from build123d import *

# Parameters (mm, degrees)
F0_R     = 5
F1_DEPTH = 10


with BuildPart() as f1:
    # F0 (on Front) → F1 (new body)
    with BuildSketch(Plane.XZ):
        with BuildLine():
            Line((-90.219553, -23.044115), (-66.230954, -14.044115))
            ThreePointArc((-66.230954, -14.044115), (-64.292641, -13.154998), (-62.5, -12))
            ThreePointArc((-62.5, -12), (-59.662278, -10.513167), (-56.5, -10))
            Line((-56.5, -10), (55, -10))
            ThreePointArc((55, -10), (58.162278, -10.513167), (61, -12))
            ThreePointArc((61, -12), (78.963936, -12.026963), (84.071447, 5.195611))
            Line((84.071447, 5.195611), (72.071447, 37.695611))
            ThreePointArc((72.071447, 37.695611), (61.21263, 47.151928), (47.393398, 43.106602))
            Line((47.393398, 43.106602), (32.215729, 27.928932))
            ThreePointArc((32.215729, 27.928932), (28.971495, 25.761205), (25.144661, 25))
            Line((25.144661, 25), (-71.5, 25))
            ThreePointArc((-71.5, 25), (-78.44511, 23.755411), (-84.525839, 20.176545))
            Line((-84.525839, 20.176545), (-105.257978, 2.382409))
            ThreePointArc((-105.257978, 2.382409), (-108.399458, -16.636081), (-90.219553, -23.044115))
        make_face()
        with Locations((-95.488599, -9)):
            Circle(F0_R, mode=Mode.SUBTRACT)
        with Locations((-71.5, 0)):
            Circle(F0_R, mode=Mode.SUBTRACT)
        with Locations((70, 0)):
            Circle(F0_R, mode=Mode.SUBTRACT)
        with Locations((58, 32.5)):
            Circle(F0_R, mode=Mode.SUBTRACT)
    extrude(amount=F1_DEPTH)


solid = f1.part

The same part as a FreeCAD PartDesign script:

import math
import FreeCAD as App
import Part
import Sketcher

V = App.Vector
Q = App.Units.Quantity

doc = App.newDocument("Part")
body = doc.addObject("PartDesign::Body", "Body")

# Sketch on XZ plane
sketch1 = body.newObject("Sketcher::SketchObject", "Sketch")
sketch1.AttachmentSupport = (doc.getObject("XZ_Plane"), [""])
sketch1.MapMode = "FlatFace"
sketch1.addGeometry([
    Part.LineSegment(V(-90.219553, -23.044115, 0), V(-66.230954, -14.044115, 0)),  # 0
    Part.ArcOfCircle(Part.Circle(V(-71.500017, 0.000028, 0), V(0, 0, 1), 15.000032), math.radians(-69.43498), math.radians(-53.130115)),  # 1
    Part.ArcOfCircle(Part.Circle(V(-56.500001, -19.999998, 0), V(0, 0, 1), 9.999998), math.radians(89.999996), math.radians(126.869902)),  # 2
    Part.LineSegment(V(-56.5, -10, 0), V(55, -10, 0)),  # 3
    Part.ArcOfCircle(Part.Circle(V(55.000001, -19.999998, 0), V(0, 0, 1), 9.999998), math.radians(53.130098), math.radians(90.000004)),  # 4
    Part.ArcOfCircle(Part.Circle(V(70, 0, 0), V(0, 0, 1), 15), math.radians(-126.869896), math.radians(20.265695)),  # 5
    Part.LineSegment(V(84.071447, 5.195611, 0), V(72.071447, 37.695611, 0)),  # 6
    Part.ArcOfCircle(Part.Circle(V(57.999999, 32.499999, 0), V(0, 0, 1), 15.000001), math.radians(20.2657), math.radians(134.999995)),  # 7
    Part.LineSegment(V(47.393398, 43.106602, 0), V(32.215729, 27.928932, 0)),  # 8
    Part.ArcOfCircle(Part.Circle(V(25.144659, 35.000007, 0), V(0, 0, 1), 10.000007), math.radians(-89.999986), math.radians(-45.000018)),  # 9
    Part.LineSegment(V(25.144661, 25, 0), V(-71.5, 25, 0)),  # 10
    Part.ArcOfCircle(Part.Circle(V(-71.499999, 4.999998, 0), V(0, 0, 1), 20.000002), math.radians(90.000002), math.radians(130.639078)),  # 11
    Part.LineSegment(V(-84.525839, 20.176545, 0), V(-105.257978, 2.382409, 0)),  # 12
    Part.ArcOfCircle(Part.Circle(V(-95.488599, -9, 0), V(0, 0, 1), 15), math.radians(130.639078), math.radians(290.564998)),  # 13
    Part.Circle(V(-95.488599, -9, 0), V(0, 0, 1), 5),  # 14
    Part.Circle(V(-71.5, 0, 0), V(0, 0, 1), 5),  # 15
    Part.Circle(V(70, 0, 0), V(0, 0, 1), 5),  # 16
    Part.Circle(V(58, 32.5, 0), V(0, 0, 1), 5),  # 17
], False)
sketch1.addConstraint([
    Sketcher.Constraint("Coincident", 0, 2, 1, 1),
    Sketcher.Constraint("Coincident", 1, 2, 2, 2),
    Sketcher.Constraint("Coincident", 2, 1, 3, 1),
    Sketcher.Constraint("Coincident", 3, 2, 4, 2),
    Sketcher.Constraint("Coincident", 4, 1, 5, 1),
    Sketcher.Constraint("Coincident", 5, 2, 6, 1),
    Sketcher.Constraint("Coincident", 6, 2, 7, 1),
    Sketcher.Constraint("Coincident", 7, 2, 8, 1),
    Sketcher.Constraint("Coincident", 8, 2, 9, 2),
    Sketcher.Constraint("Coincident", 9, 1, 10, 1),
    Sketcher.Constraint("Coincident", 10, 2, 11, 1),
    Sketcher.Constraint("Coincident", 11, 2, 12, 1),
    Sketcher.Constraint("Coincident", 12, 2, 13, 1),
    Sketcher.Constraint("Coincident", 13, 2, 0, 1),
    Sketcher.Constraint("Horizontal", 3),
    Sketcher.Constraint("Horizontal", 10),
    Sketcher.Constraint("Coincident", 14, 3, 13, 3),
    Sketcher.Constraint("Coincident", 16, 3, 5, 3),
    Sketcher.Constraint("Coincident", 17, 3, 7, 3),
    Sketcher.Constraint("PointOnObject", 5, 3, -1),
    Sketcher.Constraint("PointOnObject", 15, 3, -1),
    Sketcher.Constraint("Diameter", 14, Q("10 mm")),
    Sketcher.Constraint("Diameter", 15, Q("10 mm")),
    Sketcher.Constraint("Diameter", 16, Q("10 mm")),
    Sketcher.Constraint("Diameter", 17, Q("10 mm")),
    Sketcher.Constraint("Radius", 5, Q("15 mm")),
    Sketcher.Constraint("Radius", 7, Q("15.000001 mm")),
    Sketcher.Constraint("Radius", 11, Q("20.000002 mm")),
    Sketcher.Constraint("Radius", 13, Q("15 mm")),
    Sketcher.Constraint("DistanceX", 3, 1, 3, 2, Q("111.5 mm")),
    Sketcher.Constraint("DistanceX", -1, 1, 4, 3, Q("55.000001 mm")),
    Sketcher.Constraint("DistanceX", -1, 1, 5, 3, Q("70 mm")),
    Sketcher.Constraint("DistanceX", -1, 1, 7, 3, Q("57.999999 mm")),
    Sketcher.Constraint("DistanceY", -1, 1, 11, 3, Q("4.999998 mm")),
    Sketcher.Constraint("DistanceY", 13, 3, -1, 1, Q("9 mm")),
    Sketcher.Constraint("DistanceY", 1, 2, -1, 1, Q("12 mm")),
    Sketcher.Constraint("DistanceY", 2, 1, -1, 1, Q("10 mm")),
    Sketcher.Constraint("DistanceX", -1, 1, 3, 2, Q("55 mm")),
    Sketcher.Constraint("DistanceX", -1, 1, 4, 1, Q("61 mm")),
    Sketcher.Constraint("DistanceX", 11, 3, 2, 3, Q("14.999998 mm")),
    Sketcher.Constraint("DistanceX", 15, 3, 2, 3, Q("14.999999 mm")),
    Sketcher.Constraint("DistanceX", 1, 2, 2, 3, Q("5.999999 mm")),
    Sketcher.Constraint("DistanceX", 1, 2, 2, 1, Q("6 mm")),
    Sketcher.Constraint("DistanceX", 6, 2, 5, 2, Q("12 mm")),
    Sketcher.Constraint("DistanceX", 10, 2, 1, 2, Q("9 mm")),
    Sketcher.Constraint("DistanceY", 13, 2, 0, 2, Q("9 mm")),
    Sketcher.Constraint("DistanceY", -1, 1, 7, 3, Q("32.499999 mm")),
    Sketcher.Constraint("Radius", 1, Q("15.000032 mm")),
    Sketcher.Constraint("Radius", 9, Q("10.000007 mm")),
    Sketcher.Constraint("DistanceX", 10, 2, 10, 1, Q("96.644661 mm")),
    Sketcher.Constraint("DistanceX", 13, 3, -1, 1, Q("95.488599 mm")),
    Sketcher.Constraint("DistanceX", 7, 2, 7, 3, Q("10.606601 mm")),
    Sketcher.Constraint("DistanceX", 13, 2, 0, 2, Q("23.988599 mm")),
    Sketcher.Constraint("Distance", 12, Q("27.32129 mm")),
    Sketcher.Constraint("DistanceX", -1, 1, 9, 3, Q("25.144659 mm")),
    Sketcher.Constraint("DistanceY", -1, 1, 5, 2, Q("5.195611 mm")),
    Sketcher.Constraint("DistanceX", -1, 1, 8, 2, Q("32.215729 mm")),
    Sketcher.Constraint("DistanceX", 11, 2, -1, 1, Q("84.525839 mm")),
    Sketcher.Constraint("DistanceX", 0, 2, -1, 1, Q("66.230954 mm")),
])
pad1 = body.newObject("PartDesign::Pad", "Pad")
pad1.Profile = sketch1
pad1.Length = 10

doc.recompute()
